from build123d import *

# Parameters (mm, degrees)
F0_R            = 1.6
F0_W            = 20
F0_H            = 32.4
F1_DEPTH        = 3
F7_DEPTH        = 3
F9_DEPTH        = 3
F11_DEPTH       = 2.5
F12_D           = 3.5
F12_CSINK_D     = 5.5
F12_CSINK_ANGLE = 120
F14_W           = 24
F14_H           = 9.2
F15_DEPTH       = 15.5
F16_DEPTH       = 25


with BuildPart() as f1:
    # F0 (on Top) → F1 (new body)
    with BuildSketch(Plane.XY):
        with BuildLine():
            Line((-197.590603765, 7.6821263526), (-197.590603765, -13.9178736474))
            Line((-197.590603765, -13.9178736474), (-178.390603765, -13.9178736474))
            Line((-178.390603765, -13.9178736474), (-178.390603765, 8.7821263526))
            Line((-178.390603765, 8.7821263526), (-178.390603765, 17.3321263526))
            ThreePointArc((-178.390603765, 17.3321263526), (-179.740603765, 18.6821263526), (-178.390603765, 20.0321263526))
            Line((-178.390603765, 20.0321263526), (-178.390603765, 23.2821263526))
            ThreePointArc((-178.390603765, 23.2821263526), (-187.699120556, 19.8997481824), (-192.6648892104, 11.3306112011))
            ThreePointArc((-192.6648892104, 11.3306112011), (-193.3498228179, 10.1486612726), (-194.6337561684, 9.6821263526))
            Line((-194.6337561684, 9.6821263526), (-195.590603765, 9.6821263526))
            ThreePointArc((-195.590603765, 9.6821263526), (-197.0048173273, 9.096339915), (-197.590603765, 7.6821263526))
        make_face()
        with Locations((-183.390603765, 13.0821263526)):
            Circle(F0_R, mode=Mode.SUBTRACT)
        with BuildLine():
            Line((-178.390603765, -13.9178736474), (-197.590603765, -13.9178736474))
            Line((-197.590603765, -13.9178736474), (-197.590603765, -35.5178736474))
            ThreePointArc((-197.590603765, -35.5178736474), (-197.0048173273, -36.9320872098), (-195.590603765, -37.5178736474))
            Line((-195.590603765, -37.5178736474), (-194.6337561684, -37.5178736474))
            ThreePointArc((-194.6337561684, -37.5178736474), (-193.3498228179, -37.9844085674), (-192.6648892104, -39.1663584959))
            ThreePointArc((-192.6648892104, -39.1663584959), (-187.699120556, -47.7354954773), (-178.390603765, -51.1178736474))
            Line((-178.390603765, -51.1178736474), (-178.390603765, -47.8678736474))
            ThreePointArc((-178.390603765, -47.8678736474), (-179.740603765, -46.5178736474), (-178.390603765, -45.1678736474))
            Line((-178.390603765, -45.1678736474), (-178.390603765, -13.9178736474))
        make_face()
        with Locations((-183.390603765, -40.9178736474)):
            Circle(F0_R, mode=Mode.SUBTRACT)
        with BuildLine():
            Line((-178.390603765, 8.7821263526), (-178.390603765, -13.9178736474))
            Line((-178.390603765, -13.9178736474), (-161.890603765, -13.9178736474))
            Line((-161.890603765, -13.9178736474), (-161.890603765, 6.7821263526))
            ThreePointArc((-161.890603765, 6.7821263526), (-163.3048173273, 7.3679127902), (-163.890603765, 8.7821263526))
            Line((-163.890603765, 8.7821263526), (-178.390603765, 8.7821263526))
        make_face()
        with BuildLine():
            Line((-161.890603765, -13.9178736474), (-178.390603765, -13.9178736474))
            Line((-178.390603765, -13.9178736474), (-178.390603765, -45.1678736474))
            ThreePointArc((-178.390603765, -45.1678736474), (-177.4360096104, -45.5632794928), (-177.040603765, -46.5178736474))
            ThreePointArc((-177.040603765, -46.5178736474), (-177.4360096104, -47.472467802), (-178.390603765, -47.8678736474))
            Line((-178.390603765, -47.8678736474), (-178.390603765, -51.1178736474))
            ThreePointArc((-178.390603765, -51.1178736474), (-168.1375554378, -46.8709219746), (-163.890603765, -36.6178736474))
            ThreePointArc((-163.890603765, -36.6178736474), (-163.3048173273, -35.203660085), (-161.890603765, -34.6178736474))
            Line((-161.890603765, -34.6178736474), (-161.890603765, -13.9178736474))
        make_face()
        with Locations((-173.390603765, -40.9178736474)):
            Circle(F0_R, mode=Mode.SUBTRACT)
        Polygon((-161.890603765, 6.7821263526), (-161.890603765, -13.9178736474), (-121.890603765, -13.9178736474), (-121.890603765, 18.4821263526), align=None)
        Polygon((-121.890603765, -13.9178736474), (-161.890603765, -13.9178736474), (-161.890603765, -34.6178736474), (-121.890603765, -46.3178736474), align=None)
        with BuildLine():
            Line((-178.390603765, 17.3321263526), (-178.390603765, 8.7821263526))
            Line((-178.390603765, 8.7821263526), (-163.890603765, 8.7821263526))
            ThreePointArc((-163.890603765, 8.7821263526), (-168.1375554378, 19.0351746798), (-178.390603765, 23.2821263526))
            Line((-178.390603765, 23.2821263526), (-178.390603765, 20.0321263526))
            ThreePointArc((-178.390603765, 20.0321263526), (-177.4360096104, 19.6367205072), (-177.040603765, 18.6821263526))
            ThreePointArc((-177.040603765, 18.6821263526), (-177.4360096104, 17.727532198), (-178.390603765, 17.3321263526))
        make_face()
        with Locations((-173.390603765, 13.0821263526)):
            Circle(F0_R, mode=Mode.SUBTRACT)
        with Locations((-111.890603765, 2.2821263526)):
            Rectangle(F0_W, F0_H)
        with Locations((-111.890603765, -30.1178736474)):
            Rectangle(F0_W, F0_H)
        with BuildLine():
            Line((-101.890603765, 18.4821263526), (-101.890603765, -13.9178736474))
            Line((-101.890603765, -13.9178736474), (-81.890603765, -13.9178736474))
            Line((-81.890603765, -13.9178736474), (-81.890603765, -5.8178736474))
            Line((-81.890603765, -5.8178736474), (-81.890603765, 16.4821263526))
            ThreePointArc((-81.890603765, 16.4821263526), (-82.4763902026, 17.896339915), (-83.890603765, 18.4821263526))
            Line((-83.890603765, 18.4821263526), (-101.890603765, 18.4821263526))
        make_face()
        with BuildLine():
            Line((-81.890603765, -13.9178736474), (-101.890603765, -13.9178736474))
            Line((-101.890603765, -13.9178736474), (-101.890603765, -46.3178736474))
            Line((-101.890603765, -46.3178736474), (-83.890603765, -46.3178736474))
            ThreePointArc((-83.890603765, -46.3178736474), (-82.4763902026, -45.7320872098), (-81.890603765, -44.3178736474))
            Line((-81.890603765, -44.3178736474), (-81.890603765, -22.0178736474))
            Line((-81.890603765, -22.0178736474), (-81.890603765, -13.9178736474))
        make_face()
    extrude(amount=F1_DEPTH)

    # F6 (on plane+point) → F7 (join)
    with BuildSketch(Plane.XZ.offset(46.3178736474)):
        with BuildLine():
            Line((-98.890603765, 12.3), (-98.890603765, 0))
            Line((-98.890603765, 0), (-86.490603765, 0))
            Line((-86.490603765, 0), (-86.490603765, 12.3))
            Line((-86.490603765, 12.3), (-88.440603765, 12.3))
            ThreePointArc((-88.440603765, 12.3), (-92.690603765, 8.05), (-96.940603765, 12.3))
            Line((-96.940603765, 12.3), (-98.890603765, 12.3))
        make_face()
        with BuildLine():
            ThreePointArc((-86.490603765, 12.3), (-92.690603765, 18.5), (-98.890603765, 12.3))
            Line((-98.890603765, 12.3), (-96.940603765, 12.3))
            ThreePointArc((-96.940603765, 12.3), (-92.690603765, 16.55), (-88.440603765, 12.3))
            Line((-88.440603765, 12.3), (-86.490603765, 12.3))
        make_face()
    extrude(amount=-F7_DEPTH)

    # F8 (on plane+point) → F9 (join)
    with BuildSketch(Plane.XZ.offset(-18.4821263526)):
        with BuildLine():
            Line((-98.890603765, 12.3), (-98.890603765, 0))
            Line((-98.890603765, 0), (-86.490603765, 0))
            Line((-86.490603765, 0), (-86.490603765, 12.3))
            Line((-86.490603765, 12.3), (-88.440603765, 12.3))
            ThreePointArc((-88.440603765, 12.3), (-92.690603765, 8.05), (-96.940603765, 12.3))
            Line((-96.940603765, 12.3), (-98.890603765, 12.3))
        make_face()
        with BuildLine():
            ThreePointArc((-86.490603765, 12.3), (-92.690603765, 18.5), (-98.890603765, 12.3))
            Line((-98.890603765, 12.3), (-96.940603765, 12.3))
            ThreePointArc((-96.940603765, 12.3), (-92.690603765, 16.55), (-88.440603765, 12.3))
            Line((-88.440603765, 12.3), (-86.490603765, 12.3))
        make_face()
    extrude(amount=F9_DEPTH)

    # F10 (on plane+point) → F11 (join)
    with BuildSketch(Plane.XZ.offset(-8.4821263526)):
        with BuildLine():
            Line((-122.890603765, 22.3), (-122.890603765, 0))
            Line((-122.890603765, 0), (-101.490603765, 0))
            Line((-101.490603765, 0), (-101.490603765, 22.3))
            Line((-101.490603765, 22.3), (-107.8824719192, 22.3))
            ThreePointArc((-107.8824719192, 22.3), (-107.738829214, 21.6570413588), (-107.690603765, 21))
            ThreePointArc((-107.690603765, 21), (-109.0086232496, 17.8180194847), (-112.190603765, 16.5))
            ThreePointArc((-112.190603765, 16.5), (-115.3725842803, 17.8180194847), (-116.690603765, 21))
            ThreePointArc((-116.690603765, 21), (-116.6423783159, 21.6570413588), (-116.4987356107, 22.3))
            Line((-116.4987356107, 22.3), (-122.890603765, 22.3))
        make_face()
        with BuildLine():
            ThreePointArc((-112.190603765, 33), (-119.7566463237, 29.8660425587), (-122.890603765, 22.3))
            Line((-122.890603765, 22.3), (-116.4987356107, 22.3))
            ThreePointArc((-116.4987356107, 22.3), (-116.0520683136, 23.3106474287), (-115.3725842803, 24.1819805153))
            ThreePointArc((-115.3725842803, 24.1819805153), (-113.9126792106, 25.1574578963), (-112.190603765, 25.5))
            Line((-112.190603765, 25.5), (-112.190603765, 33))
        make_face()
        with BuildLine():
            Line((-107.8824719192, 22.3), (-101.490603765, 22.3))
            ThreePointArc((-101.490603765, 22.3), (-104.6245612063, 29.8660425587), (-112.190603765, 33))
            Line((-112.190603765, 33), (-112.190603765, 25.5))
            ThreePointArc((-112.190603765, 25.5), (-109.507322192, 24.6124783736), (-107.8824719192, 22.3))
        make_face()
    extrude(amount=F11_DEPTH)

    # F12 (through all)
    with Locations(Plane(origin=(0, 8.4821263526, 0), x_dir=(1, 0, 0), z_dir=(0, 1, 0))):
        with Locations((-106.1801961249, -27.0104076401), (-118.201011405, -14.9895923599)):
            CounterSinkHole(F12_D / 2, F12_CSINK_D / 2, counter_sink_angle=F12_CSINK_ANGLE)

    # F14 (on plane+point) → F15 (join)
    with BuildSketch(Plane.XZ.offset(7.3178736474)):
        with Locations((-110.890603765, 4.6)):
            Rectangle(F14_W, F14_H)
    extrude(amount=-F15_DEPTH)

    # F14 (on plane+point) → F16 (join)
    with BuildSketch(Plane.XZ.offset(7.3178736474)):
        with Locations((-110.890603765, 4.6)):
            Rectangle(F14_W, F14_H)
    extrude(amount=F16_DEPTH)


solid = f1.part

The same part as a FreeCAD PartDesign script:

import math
import FreeCAD as App
import Part
import Sketcher
Q = App.Units.Quantity


def add_polygon(sketch, points):
    """Adds a closed chain of lines whose ends are joined by coincident constraints."""
    first, n = sketch.GeometryCount, len(points)
    for a, b in zip(points, points[1:] + points[:1]):
        sketch.addGeometry(Part.LineSegment(App.Vector(*a, 0), App.Vector(*b, 0)), False)
    for i in range(n):
        sketch.addConstraint(Sketcher.Constraint("Coincident", first + i, 2, first + (i + 1) % n, 1))

doc = App.newDocument("Part")
params = doc.addObject("Spreadsheet::Sheet", "Params")
for row, (alias, value) in enumerate([
    ("sketch1_radius", "2 mm"),
    ("sketch1_diameter", "3.2 mm"),
    ("sketch1_radius2", "14.5 mm"),
    ("sketch1_width", "38 mm"),
    ("sketch1_radius3", "1.35 mm"),
    ("pad1_length", "3 mm"),
    ("sketch2_diameter", "8.5 mm"),
    ("sketch2_radius", "6.2 mm"),
    ("sketch2_height", "12.3 mm"),
    ("pad2_length", "3 mm"),
    ("sketch3_diameter", "8.5 mm"),
    ("sketch3_radius", "6.2 mm"),
    ("sketch3_height", "12.3 mm"),
    ("pad3_length", "3 mm"),
    ("sketch4_radius", "10.7 mm"),
    ("sketch4_radius2", "4.5 mm"),
    ("sketch4_height", "22.3 mm"),
    ("pad4_length", "2.5 mm"),
    ("sketch5_diameter", "3.5 mm"),
    ("hole_diameter", "3.5 mm"),
    ("hole_csink_diameter", "5.5 mm"),
    ("sketch6_width", "24 mm"),
    ("sketch6_height", "9.2 mm"),
    ("pad5_length", "15.5 mm"),
    ("sketch7_width", "24 mm"),
    ("sketch7_height", "9.2 mm"),
    ("pad6_length", "25 mm"),
], start=1):
    params.set(f"A{row}", alias)
    params.set(f"B{row}", "=" + value)
    params.setAlias(f"B{row}", alias)

body = doc.addObject("PartDesign::Body", "Body")

# Sketch on XY plane
sketch1 = body.newObject("Sketcher::SketchObject", "Sketch")
sketch1.AttachmentSupport = (doc.getObject("XY_Plane"), [""])
sketch1.MapMode = "FlatFace"
sketch1.addGeometry([
    Part.LineSegment(App.Vector(-197.6, 7.7, 0), App.Vector(-197.6, -35.5, 0)),  # 0
    Part.ArcOfCircle(Part.Circle(App.Vector(-195.6, -35.5, 0), App.Vector(0, 0, 1), 2), math.radians(180), math.radians(270)),  # 1
    Part.LineSegment(App.Vector(-195.6, -37.5, 0), App.Vector(-194.6, -37.5, 0)),  # 2
    Part.ArcOfCircle(Part.Circle(App.Vector(-194.6, -39.5, 0), App.Vector(0, 0, 1), 2), math.radians(10), math.radians(90)),  # 3
    Part.ArcOfCircle(Part.Circle(App.Vector(-178.4, -36.6, 0), App.Vector(0, 0, 1), 14.5), math.radians(-170), math.radians(-90)),  # 4
    Part.ArcOfCircle(Part.Circle(App.Vector(-178.4, -36.6, 0), App.Vector(0, 0, 1), 14.5), math.radians(-90), math.radians(0)),  # 5
    Part.ArcOfCircle(Part.Circle(App.Vector(-161.9, -36.6, 0), App.Vector(0, 0, 1), 2), math.radians(90), math.radians(180)),  # 6
    Part.LineSegment(App.Vector(-161.9, -34.6, 0), App.Vector(-121.9, -46.3, 0)),  # 7
    Part.LineSegment(App.Vector(-121.9, -46.3, 0), App.Vector(-83.9, -46.3, 0)),  # 8
    Part.ArcOfCircle(Part.Circle(App.Vector(-83.9, -44.3, 0), App.Vector(0, 0, 1), 2), math.radians(-90), math.radians(0)),  # 9
    Part.LineSegment(App.Vector(-81.9, -44.3, 0), App.Vector(-81.9, 16.5, 0)),  # 10
    Part.ArcOfCircle(Part.Circle(App.Vector(-83.9, 16.5, 0), App.Vector(0, 0, 1), 2), math.radians(0), math.radians(90)),  # 11
    Part.LineSegment(App.Vector(-83.9, 18.5, 0), App.Vector(-121.9, 18.5, 0)),  # 12
    Part.LineSegment(App.Vector(-121.9, 18.5, 0), App.Vector(-161.9, 6.8, 0)),  # 13
    Part.ArcOfCircle(Part.Circle(App.Vector(-161.9, 8.8, 0), App.Vector(0, 0, 1), 2), math.radians(180), math.radians(270)),  # 14
    Part.ArcOfCircle(Part.Circle(App.Vector(-178.4, 8.8, 0), App.Vector(0, 0, 1), 14.5), math.radians(0), math.radians(90)),  # 15
    Part.ArcOfCircle(Part.Circle(App.Vector(-178.4, 8.8, 0), App.Vector(0, 0, 1), 14.5), math.radians(90), math.radians(170)),  # 16
    Part.ArcOfCircle(Part.Circle(App.Vector(-194.6, 11.7, 0), App.Vector(0, 0, 1), 2), math.radians(-90), math.radians(-10)),  # 17
    Part.LineSegment(App.Vector(-194.6, 9.7, 0), App.Vector(-195.6, 9.7, 0)),  # 18
    Part.ArcOfCircle(Part.Circle(App.Vector(-195.6, 7.7, 0), App.Vector(0, 0, 1), 2), math.radians(90), math.radians(180)),  # 19
    Part.Circle(App.Vector(-183.4, -40.9, 0), App.Vector(0, 0, 1), 1.6),  # 20
    Part.ArcOfCircle(Part.Circle(App.Vector(-178.4, -46.5, 0), App.Vector(0, 0, 1), 1.4), math.radians(90), math.radians(270)),  # 21
    Part.ArcOfCircle(Part.Circle(App.Vector(-178.4, -46.5, 0), App.Vector(0, 0, 1), 1.4), math.radians(0), math.radians(90)),  # 22
    Part.ArcOfCircle(Part.Circle(App.Vector(-178.4, -46.5, 0), App.Vector(0, 0, 1), 1.4), math.radians(-90), math.radians(0)),  # 23
    Part.Circle(App.Vector(-173.4, -40.9, 0), App.Vector(0, 0, 1), 1.6),  # 24
    Part.Circle(App.Vector(-183.4, 13.1, 0), App.Vector(0, 0, 1), 1.6),  # 25
    Part.ArcOfCircle(Part.Circle(App.Vector(-178.4, 18.7, 0), App.Vector(0, 0, 1), 1.4), math.radians(90), math.radians(270)),  # 26
    Part.ArcOfCircle(Part.Circle(App.Vector(-178.4, 18.7, 0), App.Vector(0, 0, 1), 1.4), math.radians(0), math.radians(90)),  # 27
    Part.ArcOfCircle(Part.Circle(App.Vector(-178.4, 18.7, 0), App.Vector(0, 0, 1), 1.4), math.radians(-90), math.radians(0)),  # 28
    Part.Circle(App.Vector(-173.4, 13.1, 0), App.Vector(0, 0, 1), 1.6),  # 29
], False)
sketch1.addConstraint([
    Sketcher.Constraint("Tangent", 0, 2, 1, 1),
    Sketcher.Constraint("Tangent", 1, 2, 2, 1),
    Sketcher.Constraint("Tangent", 2, 2, 3, 2),
    Sketcher.Constraint("Tangent", 3, 1, 4, 1),
    Sketcher.Constraint("Tangent", 4, 2, 5, 1),
    Sketcher.Constraint("Tangent", 5, 2, 6, 2),
    Sketcher.Constraint("Coincident", 6, 1, 7, 1),
    Sketcher.Constraint("Coincident", 7, 2, 8, 1),
    Sketcher.Constraint("Tangent", 8, 2, 9, 1),
    Sketcher.Constraint("Tangent", 9, 2, 10, 1),
    Sketcher.Constraint("Tangent", 10, 2, 11, 1),
    Sketcher.Constraint("Tangent", 11, 2, 12, 1),
    Sketcher.Constraint("Coincident", 12, 2, 13, 1),
    Sketcher.Constraint("Coincident", 13, 2, 14, 2),
    Sketcher.Constraint("Tangent", 14, 1, 15, 1),
    Sketcher.Constraint("Tangent", 15, 2, 16, 1),
    Sketcher.Constraint("Tangent", 16, 2, 17, 2),
    Sketcher.Constraint("Tangent", 17, 1, 18, 1),
    Sketcher.Constraint("Tangent", 18, 2, 19, 1),
    Sketcher.Constraint("Tangent", 19, 2, 0, 1),
    Sketcher.Constraint("Tangent", 21, 1, 22, 2),
    Sketcher.Constraint("Tangent", 22, 1, 23, 2),
    Sketcher.Constraint("Tangent", 23, 1, 21, 2),
    Sketcher.Constraint("Tangent", 26, 1, 27, 2),
    Sketcher.Constraint("Tangent", 27, 1, 28, 2),
    Sketcher.Constraint("Tangent", 28, 1, 26, 2),
    Sketcher.Constraint("Vertical", 0),
    Sketcher.Constraint("Horizontal", 2),
    Sketcher.Constraint("Horizontal", 8),
    Sketcher.Constraint("Vertical", 10),
    Sketcher.Constraint("Horizontal", 12),
    Sketcher.Constraint("Horizontal", 18),
    Sketcher.Constraint("Equal", 1, 3),
    Sketcher.Constraint("Equal", 4, 5),
    Sketcher.Constraint("Equal", 3, 6),
    Sketcher.Constraint("Equal", 6, 9),
    Sketcher.Constraint("Equal", 9, 11),
    Sketcher.Constraint("Equal", 11, 14),
    Sketcher.Constraint("Equal", 5, 15),
    Sketcher.Constraint("Equal", 15, 16),
    Sketcher.Constraint("Equal", 14, 17),
    Sketcher.Constraint("Equal", 17, 19),
    Sketcher.Constraint("Equal", 20, 24),
    Sketcher.Constraint("Equal", 24, 25),
    Sketcher.Constraint("Equal", 23, 26),
    Sketcher.Constraint("Equal", 25, 29),
    Sketcher.Constraint("Horizontal", 5, 3, 6, 3),
    Sketcher.Constraint("Horizontal", 14, 3, 15, 3),
    Sketcher.Constraint("Horizontal", 20, 3, 24, 3),
    Sketcher.Constraint("Horizontal", 25, 3, 29, 3),
    Sketcher.Constraint("Horizontal", 23, 3, 22, 1),
    Sketcher.Constraint("Horizontal", 28, 3, 27, 1),
    Sketcher.Constraint("Vertical", 6, 3, 14, 3),
    Sketcher.Constraint("Vertical", 3, 3, 17, 3),
    Sketcher.Constraint("Vertical", 16, 3, 21, 3),
    Sketcher.Constraint("Vertical", 20, 3, 25, 3),
    Sketcher.Constraint("Vertical", 23, 3, 26, 3),
    Sketcher.Constraint("Vertical", 24, 3, 29, 3),
    Sketcher.Constraint("Vertical", 28, 3, 4, 2),
    Sketcher.Constraint("Vertical", 14, 3, 6, 1),
    Sketcher.Constraint("Vertical", 7, 2, 12, 2),
    Sketcher.Constraint("Vertical", 6, 1, 13, 2),
    Sketcher.Constraint("Vertical", 4, 2, 15, 2),
    Sketcher.Constraint("Vertical", 15, 2, 21, 1),
    Sketcher.Constraint("Vertical", 21, 1, 23, 1),
    Sketcher.Constraint("Vertical", 23, 1, 26, 1),
    Sketcher.Constraint("Vertical", 26, 1, 28, 1),
    Sketcher.Constraint("Equal", 7, 13),
    Sketcher.Constraint("Radius", 1, Q("2 mm")),
    Sketcher.Constraint("Diameter", 20, Q("3.2 mm")),
    Sketcher.Constraint("Radius", 4, Q("14.5 mm")),
    Sketcher.Constraint("DistanceX", 8, 1, 8, 2, Q("38 mm")),
    Sketcher.Constraint("Radius", 21, Q("1.35 mm")),
    Sketcher.Constraint("DistanceY", 0, 2, 0, 1, Q("43.2 mm")),
    Sketcher.Constraint("DistanceY", 10, 1, 10, 2, Q("60.8 mm")),
    Sketcher.Constraint("DistanceX", 6, 3, 9, 3, Q("78 mm")),
    Sketcher.Constraint("DistanceX", 20, 3, 4, 3, Q("5 mm")),
    Sketcher.Constraint("DistanceY", 21, 3, 3, 3, Q("7 mm")),
    Sketcher.Constraint("DistanceX", 4, 3, 24, 3, Q("5 mm")),
    Sketcher.Constraint("DistanceY", 17, 3, 26, 3, Q("7 mm")),
    Sketcher.Constraint("DistanceY", 3, 3, 4, 3, Q("2.9 mm")),
    Sketcher.Constraint("DistanceX", 1, 3, 4, 3, Q("17.2 mm")),
    Sketcher.Constraint("DistanceY", 20, 3, 4, 3, Q("4.3 mm")),
    Sketcher.Constraint("DistanceY", 15, 3, 25, 3, Q("4.3 mm")),
    Sketcher.Constraint("DistanceX", 3, 1, -1, 1, Q("192.664889 mm")),
    Sketcher.Constraint("DistanceY", 3, 1, -1, 1, Q("39.166358 mm")),
])
sketch1.setExpression("Constraints[68]", "Params.sketch1_radius")
sketch1.setExpression("Constraints[69]", "Params.sketch1_diameter")
sketch1.setExpression("Constraints[70]", "Params.sketch1_radius2")
sketch1.setExpression("Constraints[71]", "Params.sketch1_width")
sketch1.setExpression("Constraints[72]", "Params.sketch1_radius3")
pad1 = body.newObject("PartDesign::Pad", "Pad")
pad1.Profile = sketch1
pad1.setExpression("Length", "Params.pad1_length")

# Sketch on XZ plane
sketch2 = body.newObject("Sketcher::SketchObject", "Sketch001")
sketch2.AttachmentSupport = (doc.getObject("XZ_Plane"), [""])
sketch2.MapMode = "FlatFace"
sketch2.AttachmentOffset = App.Placement(App.Vector(0, 0, 46.317874), App.Rotation())
sketch2.addGeometry([
    Part.LineSegment(App.Vector(-98.9, 12.3, 0), App.Vector(-98.9, 0, 0)),  # 0
    Part.LineSegment(App.Vector(-98.9, 0, 0), App.Vector(-86.5, 0, 0)),  # 1
    Part.LineSegment(App.Vector(-86.5, 0, 0), App.Vector(-86.5, 12.3, 0)),  # 2
    Part.ArcOfCircle(Part.Circle(App.Vector(-92.7, 12.3, 0), App.Vector(0, 0, 1), 6.2), math.radians(0), math.radians(180)),  # 3
    Part.Circle(App.Vector(-92.7, 12.3, 0), App.Vector(0, 0, 1), 4.2),  # 4
], False)
sketch2.addConstraint([
    Sketcher.Constraint("Coincident", 0, 2, 1, 1),
    Sketcher.Constraint("Coincident", 1, 2, 2, 1),
    Sketcher.Constraint("Tangent", 2, 2, 3, 1),
    Sketcher.Constraint("Tangent", 3, 2, 0, 1),
    Sketcher.Constraint("Vertical", 0),
    Sketcher.Constraint("Horizontal", 1),
    Sketcher.Constraint("Vertical", 2),
    Sketcher.Constraint("Coincident", 4, 3, 3, 3),
    Sketcher.Constraint("PointOnObject", 0, 2, -1),
    Sketcher.Constraint("Diameter", 4, Q("8.5 mm")),
    Sketcher.Constraint("Radius", 3, Q("6.2 mm")),
    Sketcher.Constraint("DistanceY", 0, 2, 0, 1, Q("12.3 mm")),
    Sketcher.Constraint("DistanceX", 3, 3, -1, 1, Q("92.690604 mm")),
])
sketch2.setExpression("Constraints[9]", "Params.sketch2_diameter")
sketch2.setExpression("Constraints[10]", "Params.sketch2_radius")
sketch2.setExpression("Constraints[11]", "Params.sketch2_height")
pad2 = body.newObject("PartDesign::Pad", "Pad001")
pad2.Profile = sketch2
pad2.setExpression("Length", "Params.pad2_length")
pad2.Reversed = True

# Sketch on XZ plane
sketch3 = body.newObject("Sketcher::SketchObject", "Sketch002")
sketch3.AttachmentSupport = (doc.getObject("XZ_Plane"), [""])
sketch3.MapMode = "FlatFace"
sketch3.AttachmentOffset = App.Placement(App.Vector(0, 0, -18.482126), App.Rotation())
sketch3.addGeometry([
    Part.LineSegment(App.Vector(-98.9, 12.3, 0), App.Vector(-98.9, 0, 0)),  # 0
    Part.LineSegment(App.Vector(-98.9, 0, 0), App.Vector(-86.5, 0, 0)),  # 1
    Part.LineSegment(App.Vector(-86.5, 0, 0), App.Vector(-86.5, 12.3, 0)),  # 2
    Part.ArcOfCircle(Part.Circle(App.Vector(-92.7, 12.3, 0), App.Vector(0, 0, 1), 6.2), math.radians(0), math.radians(180)),  # 3
    Part.Circle(App.Vector(-92.7, 12.3, 0), App.Vector(0, 0, 1), 4.2),  # 4
], False)
sketch3.addConstraint([
    Sketcher.Constraint("Coincident", 0, 2, 1, 1),
    Sketcher.Constraint("Coincident", 1, 2, 2, 1),
    Sketcher.Constraint("Tangent", 2, 2, 3, 1),
    Sketcher.Constraint("Tangent", 3, 2, 0, 1),
    Sketcher.Constraint("Vertical", 0),
    Sketcher.Constraint("Horizontal", 1),
    Sketcher.Constraint("Vertical", 2),
    Sketcher.Constraint("Coincident", 4, 3, 3, 3),
    Sketcher.Constraint("PointOnObject", 0, 2, -1),
    Sketcher.Constraint("Diameter", 4, Q("8.5 mm")),
    Sketcher.Constraint("Radius", 3, Q("6.2 mm")),
    Sketcher.Constraint("DistanceY", 0, 2, 0, 1, Q("12.3 mm")),
    Sketcher.Constraint("DistanceX", 3, 3, -1, 1, Q("92.690604 mm")),
])
sketch3.setExpression("Constraints[9]", "Params.sketch3_diameter")
sketch3.setExpression("Constraints[10]", "Params.sketch3_radius")
sketch3.setExpression("Constraints[11]", "Params.sketch3_height")
pad3 = body.newObject("PartDesign::Pad", "Pad002")
pad3.Profile = sketch3
pad3.setExpression("Length", "Params.pad3_length")

# Sketch on XZ plane
sketch4 = body.newObject("Sketcher::SketchObject", "Sketch003")
sketch4.AttachmentSupport = (doc.getObject("XZ_Plane"), [""])
sketch4.MapMode = "FlatFace"
sketch4.AttachmentOffset = App.Placement(App.Vector(0, 0, -8.482126), App.Rotation())
sketch4.addGeometry([
    Part.LineSegment(App.Vector(-122.9, 22.3, 0), App.Vector(-122.9, 0, 0)),  # 0
    Part.LineSegment(App.Vector(-122.9, 0, 0), App.Vector(-101.5, 0, 0)),  # 1
    Part.LineSegment(App.Vector(-101.5, 0, 0), App.Vector(-101.5, 22.3, 0)),  # 2
    Part.ArcOfCircle(Part.Circle(App.Vector(-112.2, 22.3, 0), App.Vector(0, 0, 1), 10.7), math.radians(0), math.radians(90)),  # 3
    Part.ArcOfCircle(Part.Circle(App.Vector(-112.2, 22.3, 0), App.Vector(0, 0, 1), 10.7), math.radians(90), math.radians(180)),  # 4
    Part.ArcOfCircle(Part.Circle(App.Vector(-112.2, 21, 0), App.Vector(0, 0, 1), 4.5), math.radians(0), math.radians(16.79)),  # 5
    Part.ArcOfCircle(Part.Circle(App.Vector(-112.2, 21, 0), App.Vector(0, 0, 1), 4.5), math.radians(-90), math.radians(0)),  # 6
    Part.ArcOfCircle(Part.Circle(App.Vector(-112.2, 21, 0), App.Vector(0, 0, 1), 4.5), math.radians(180), math.radians(270)),  # 7
    Part.ArcOfCircle(Part.Circle(App.Vector(-112.2, 21, 0), App.Vector(0, 0, 1), 4.5), math.radians(163.21), math.radians(180)),  # 8
    Part.ArcOfCircle(Part.Circle(App.Vector(-112.2, 21, 0), App.Vector(0, 0, 1), 4.5), math.radians(135), math.radians(163)),  # 9
    Part.ArcOfCircle(Part.Circle(App.Vector(-112.2, 21, 0), App.Vector(0, 0, 1), 4.5), math.radians(90), math.radians(135)),  # 10
    Part.ArcOfCircle(Part.Circle(App.Vector(-112.2, 21, 0), App.Vector(0, 0, 1), 4.5), math.radians(17), math.radians(90)),  # 11
], False)
sketch4.addConstraint([
    Sketcher.Constraint("Coincident", 0, 2, 1, 1),
    Sketcher.Constraint("Coincident", 1, 2, 2, 1),
    Sketcher.Constraint("Tangent", 2, 2, 3, 1),
    Sketcher.Constraint("Tangent", 3, 2, 4, 1),
    Sketcher.Constraint("Tangent", 4, 2, 0, 1),
    Sketcher.Constraint("Tangent", 5, 1, 6, 2),
    Sketcher.Constraint("Tangent", 6, 1, 7, 2),
    Sketcher.Constraint("Tangent", 7, 1, 8, 2),
    Sketcher.Constraint("Tangent", 8, 1, 9, 2),
    Sketcher.Constraint("Tangent", 9, 1, 10, 2),
    Sketcher.Constraint("Tangent", 10, 1, 11, 2),
    Sketcher.Constraint("Tangent", 11, 1, 5, 2),
    Sketcher.Constraint("Vertical", 0),
    Sketcher.Constraint("Horizontal", 1),
    Sketcher.Constraint("Vertical", 2),
    Sketcher.Constraint("Coincident", 7, 3, 5, 3),
    Sketcher.Constraint("Coincident", 9, 3, 5, 3),
    Sketcher.Constraint("Equal", 3, 4),
    Sketcher.Constraint("PointOnObject", 0, 2, -1),
    Sketcher.Constraint("Horizontal", 11, 3, 5, 1),
    Sketcher.Constraint("Horizontal", 5, 1, 7, 1),
    Sketcher.Constraint("Horizontal", 4, 2, 8, 1),
    Sketcher.Constraint("Horizontal", 8, 1, 11, 1),
    Sketcher.Constraint("Vertical", 4, 3, 5, 3),
    Sketcher.Constraint("Vertical", 11, 3, 3, 2),
    Sketcher.Constraint("Vertical", 3, 2, 6, 1),
    Sketcher.Constraint("Vertical", 6, 1, 10, 1),
    Sketcher.Constraint("Radius", 3, Q("10.7 mm")),
    Sketcher.Constraint("Radius", 5, Q("4.5 mm")),
    Sketcher.Constraint("DistanceY", 0, 2, 0, 1, Q("22.3 mm")),
    Sketcher.Constraint("DistanceY", -1, 1, 5, 3, Q("21 mm")),
    Sketcher.Constraint("DistanceY", -1, 1, 9, 1, Q("24.181981 mm")),
    Sketcher.Constraint("DistanceX", 11, 1, -1, 1, Q("107.882472 mm")),
])
sketch4.setExpression("Constraints[27]", "Params.sketch4_radius")
sketch4.setExpression("Constraints[28]", "Params.sketch4_radius2")
sketch4.setExpression("Constraints[29]", "Params.sketch4_height")
pad4 = body.newObject("PartDesign::Pad", "Pad003")
pad4.Profile = sketch4
pad4.setExpression("Length", "Params.pad4_length")

# Sketch on XZ plane
sketch5 = body.newObject("Sketcher::SketchObject", "Sketch004")
sketch5.AttachmentSupport = (doc.getObject("XZ_Plane"), [""])
sketch5.MapMode = "FlatFace"
sketch5.AttachmentOffset = App.Placement(App.Vector(0, 0, -8.482126), App.Rotation())
sketch5.addGeometry([
    Part.Circle(App.Vector(-106.2, 27, 0), App.Vector(0, 0, 1), 1.8),
    Part.Circle(App.Vector(-118.2, 15, 0), App.Vector(0, 0, 1), 1.8),
], False)
sketch5.addConstraint([
    Sketcher.Constraint("Equal", 0, 1),
    Sketcher.Constraint("Diameter", 0, Q("3.5 mm")),
    Sketcher.Constraint("DistanceX", 1, 3, -1, 1, Q("118.201011 mm")),
    Sketcher.Constraint("DistanceX", 0, 3, -1, 1, Q("106.180196 mm")),
    Sketcher.Constraint("DistanceY", -1, 1, 0, 3, Q("27.010408 mm")),
    Sketcher.Constraint("DistanceY", -1, 1, 1, 3, Q("14.989592 mm")),
])
sketch5.setExpression("Constraints[1]", "Params.sketch5_diameter")
doc.recompute()
hole = body.newObject("PartDesign::Hole", "Hole")
hole.Profile = sketch5
hole.ThreadType = "None"
hole.setExpression("Diameter", "Params.hole_diameter")
hole.DepthType = "ThroughAll"
hole.HoleCutType = "Countersink"
hole.setExpression("HoleCutDiameter", "Params.hole_csink_diameter")
hole.HoleCutCountersinkAngle = 120
hole.Reversed = True

# Sketch on XZ plane
sketch6 = body.newObject("Sketcher::SketchObject", "Sketch005")
sketch6.AttachmentSupport = (doc.getObject("XZ_Plane"), [""])
sketch6.MapMode = "FlatFace"
sketch6.AttachmentOffset = App.Placement(App.Vector(0, 0, 7.317874), App.Rotation())
add_polygon(sketch6, [(-123, 9), (-123, 0), (-99, 0), (-99, 9)])  # lines 0-3
sketch6.addConstraint([
    Sketcher.Constraint("Vertical", 0),
    Sketcher.Constraint("Horizontal", 1),
    Sketcher.Constraint("Vertical", 2),
    Sketcher.Constraint("Horizontal", 3),
    Sketcher.Constraint("PointOnObject", 0, 2, -1),
    Sketcher.Constraint("DistanceX", 1, 1, 1, 2, Q("24 mm")),
    Sketcher.Constraint("DistanceY", 0, 2, 0, 1, Q("9.2 mm")),
    Sketcher.Constraint("DistanceX", 0, 2, -1, 1, Q("122.890604 mm")),
])
sketch6.setExpression("Constraints[9]", "Params.sketch6_width")
sketch6.setExpression("Constraints[10]", "Params.sketch6_height")
pad5 = body.newObject("PartDesign::Pad", "Pad004")
pad5.Profile = sketch6
pad5.setExpression("Length", "Params.pad5_length")
pad5.Reversed = True

# Sketch on XZ plane
sketch7 = body.newObject("Sketcher::SketchObject", "Sketch006")
sketch7.AttachmentSupport = (doc.getObject("XZ_Plane"), [""])
sketch7.MapMode = "FlatFace"
sketch7.AttachmentOffset = App.Placement(App.Vector(0, 0, 7.317874), App.Rotation())
add_polygon(sketch7, [(-123, 9), (-123, 0), (-99, 0), (-99, 9)])  # lines 0-3
sketch7.addConstraint([
    Sketcher.Constraint("Vertical", 0),
    Sketcher.Constraint("Horizontal", 1),
    Sketcher.Constraint("Vertical", 2),
    Sketcher.Constraint("Horizontal", 3),
    Sketcher.Constraint("PointOnObject", 0, 2, -1),
    Sketcher.Constraint("DistanceX", 1, 1, 1, 2, Q("24 mm")),
    Sketcher.Constraint("DistanceY", 0, 2, 0, 1, Q("9.2 mm")),
    Sketcher.Constraint("DistanceX", 0, 2, -1, 1, Q("122.890604 mm")),
])
sketch7.setExpression("Constraints[9]", "Params.sketch7_width")
sketch7.setExpression("Constraints[10]", "Params.sketch7_height")
pad6 = body.newObject("PartDesign::Pad", "Pad005")
pad6.Profile = sketch7
pad6.setExpression("Length", "Params.pad6_length")

doc.recompute()
